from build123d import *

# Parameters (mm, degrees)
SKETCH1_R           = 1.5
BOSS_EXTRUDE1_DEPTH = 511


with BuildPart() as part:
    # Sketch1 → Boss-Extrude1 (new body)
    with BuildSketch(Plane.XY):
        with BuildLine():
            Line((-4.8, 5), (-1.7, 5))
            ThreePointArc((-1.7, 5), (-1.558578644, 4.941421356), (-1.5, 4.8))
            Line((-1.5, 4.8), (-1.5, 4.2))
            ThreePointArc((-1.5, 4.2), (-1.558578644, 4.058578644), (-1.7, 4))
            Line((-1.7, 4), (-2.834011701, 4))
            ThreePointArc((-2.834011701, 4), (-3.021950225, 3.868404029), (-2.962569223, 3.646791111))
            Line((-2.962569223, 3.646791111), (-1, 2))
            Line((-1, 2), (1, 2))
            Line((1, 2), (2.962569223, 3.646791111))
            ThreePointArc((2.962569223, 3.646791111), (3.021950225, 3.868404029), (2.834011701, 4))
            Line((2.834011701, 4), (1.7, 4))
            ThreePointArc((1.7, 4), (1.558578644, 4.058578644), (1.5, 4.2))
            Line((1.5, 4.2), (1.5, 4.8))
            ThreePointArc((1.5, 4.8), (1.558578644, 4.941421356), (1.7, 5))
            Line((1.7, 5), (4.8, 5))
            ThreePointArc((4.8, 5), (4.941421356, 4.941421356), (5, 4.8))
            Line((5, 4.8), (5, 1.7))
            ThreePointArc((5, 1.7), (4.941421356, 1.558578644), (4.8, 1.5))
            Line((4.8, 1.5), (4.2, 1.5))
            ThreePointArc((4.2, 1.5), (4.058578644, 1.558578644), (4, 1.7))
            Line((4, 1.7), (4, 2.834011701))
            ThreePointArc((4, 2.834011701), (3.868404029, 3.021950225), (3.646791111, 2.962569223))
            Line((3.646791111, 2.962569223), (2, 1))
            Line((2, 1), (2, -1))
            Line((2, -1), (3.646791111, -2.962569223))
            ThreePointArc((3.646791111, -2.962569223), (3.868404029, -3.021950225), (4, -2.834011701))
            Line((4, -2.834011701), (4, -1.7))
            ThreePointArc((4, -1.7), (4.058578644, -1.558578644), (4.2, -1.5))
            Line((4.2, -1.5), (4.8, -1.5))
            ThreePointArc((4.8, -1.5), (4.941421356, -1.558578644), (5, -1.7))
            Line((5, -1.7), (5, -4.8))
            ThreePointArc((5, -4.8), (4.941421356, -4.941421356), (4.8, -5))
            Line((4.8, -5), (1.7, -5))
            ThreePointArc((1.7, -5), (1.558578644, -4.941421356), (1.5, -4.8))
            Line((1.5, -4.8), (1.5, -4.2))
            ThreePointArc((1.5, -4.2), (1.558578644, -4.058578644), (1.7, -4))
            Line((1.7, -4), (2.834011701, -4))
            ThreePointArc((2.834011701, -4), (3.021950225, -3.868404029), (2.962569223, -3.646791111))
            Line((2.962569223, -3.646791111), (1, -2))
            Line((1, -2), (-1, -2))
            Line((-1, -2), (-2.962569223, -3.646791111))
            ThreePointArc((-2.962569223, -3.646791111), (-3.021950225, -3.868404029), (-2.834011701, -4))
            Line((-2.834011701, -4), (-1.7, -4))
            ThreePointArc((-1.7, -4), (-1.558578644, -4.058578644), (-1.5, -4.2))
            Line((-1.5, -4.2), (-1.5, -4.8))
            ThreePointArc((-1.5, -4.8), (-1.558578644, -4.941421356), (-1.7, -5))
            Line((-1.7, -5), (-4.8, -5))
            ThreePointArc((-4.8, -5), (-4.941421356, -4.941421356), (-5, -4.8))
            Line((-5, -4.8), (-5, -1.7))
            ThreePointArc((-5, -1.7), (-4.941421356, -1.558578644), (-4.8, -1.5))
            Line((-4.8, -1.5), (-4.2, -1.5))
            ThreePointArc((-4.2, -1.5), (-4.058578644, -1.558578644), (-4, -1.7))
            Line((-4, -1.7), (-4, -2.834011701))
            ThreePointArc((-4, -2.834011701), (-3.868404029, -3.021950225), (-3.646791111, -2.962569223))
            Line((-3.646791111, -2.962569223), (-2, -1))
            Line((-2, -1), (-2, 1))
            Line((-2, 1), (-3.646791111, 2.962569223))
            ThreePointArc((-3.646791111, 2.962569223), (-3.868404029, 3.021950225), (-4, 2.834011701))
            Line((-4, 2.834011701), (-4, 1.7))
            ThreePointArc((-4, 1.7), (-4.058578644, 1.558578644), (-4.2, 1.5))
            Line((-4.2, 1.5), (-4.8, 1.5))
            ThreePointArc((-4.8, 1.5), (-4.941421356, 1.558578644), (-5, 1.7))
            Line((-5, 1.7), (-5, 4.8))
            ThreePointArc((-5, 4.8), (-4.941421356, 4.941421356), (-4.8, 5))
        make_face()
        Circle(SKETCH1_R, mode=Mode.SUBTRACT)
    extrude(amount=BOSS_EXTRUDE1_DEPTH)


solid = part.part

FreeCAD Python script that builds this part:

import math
import FreeCAD as App
import Part
import Sketcher
from FreeCAD import Vector
Q = App.Units.Quantity

doc = App.newDocument("Part")
body = doc.addObject("PartDesign::Body", "Body")

sketch1 = body.newObject("Sketcher::SketchObject", "Sketch")
sketch1.AttachmentSupport = (doc.getObject("XY_Plane"), [""])
sketch1.MapMode = "FlatFace"
sketch1.addGeometry([
    Part.LineSegment(Vector(-1.7, 5, 0), Vector(-4.8, 5, 0)),
    Part.ArcOfCircle(Part.Circle(Vector(-4.8, 4.8, 0), Vector(0, 0, 1), 0.2), math.radians(90), math.radians(180)),
    Part.LineSegment(Vector(-5, 4.8, 0), Vector(-5, 1.7, 0)),
    Part.ArcOfCircle(Part.Circle(Vector(-4.8, 1.7, 0), Vector(0, 0, 1), 0.2), math.radians(-180), math.radians(-90)),
    Part.LineSegment(Vector(-4.8, 1.5, 0), Vector(-4.2, 1.5, 0)),
    Part.ArcOfCircle(Part.Circle(Vector(-4.2, 1.7, 0), Vector(0, 0, 1), 0.2), math.radians(-90), math.radians(0)),
    Part.LineSegment(Vector(-4, 1.7, 0), Vector(-4, 2.83, 0)),
    Part.ArcOfCircle(Part.Circle(Vector(-3.8, 2.83, 0), Vector(0, 0, 1), 0.2), math.radians(40), math.radians(180)),
    Part.LineSegment(Vector(-3.65, 2.96, 0), Vector(-2, 1, 0)),
    Part.LineSegment(Vector(-2, 1, 0), Vector(-2, -1, 0)),
    Part.LineSegment(Vector(-2, -1, 0), Vector(-3.65, -2.96, 0)),
    Part.ArcOfCircle(Part.Circle(Vector(-3.8, -2.83, 0), Vector(0, 0, 1), 0.2), math.radians(180), math.radians(320)),
    Part.LineSegment(Vector(-4, -2.83, 0), Vector(-4, -1.7, 0)),
    Part.ArcOfCircle(Part.Circle(Vector(-4.2, -1.7, 0), Vector(0, 0, 1), 0.2), math.radians(0), math.radians(90)),
    Part.LineSegment(Vector(-4.2, -1.5, 0), Vector(-4.8, -1.5, 0)),
    Part.ArcOfCircle(Part.Circle(Vector(-4.8, -1.7, 0), Vector(0, 0, 1), 0.2), math.radians(90), math.radians(180)),
    Part.LineSegment(Vector(-5, -1.7, 0), Vector(-5, -4.8, 0)),
    Part.ArcOfCircle(Part.Circle(Vector(-4.8, -4.8, 0), Vector(0, 0, 1), 0.2), math.radians(-180), math.radians(-90)),
    Part.LineSegment(Vector(-4.8, -5, 0), Vector(-1.7, -5, 0)),
    Part.ArcOfCircle(Part.Circle(Vector(-1.7, -4.8, 0), Vector(0, 0, 1), 0.2), math.radians(-90), math.radians(0)),
    Part.LineSegment(Vector(-1.5, -4.8, 0), Vector(-1.5, -4.2, 0)),
    Part.ArcOfCircle(Part.Circle(Vector(-1.7, -4.2, 0), Vector(0, 0, 1), 0.2), math.radians(0), math.radians(90)),
    Part.LineSegment(Vector(-1.7, -4, 0), Vector(-2.83, -4, 0)),
    Part.ArcOfCircle(Part.Circle(Vector(-2.83, -3.8, 0), Vector(0, 0, 1), 0.2), math.radians(130), math.radians(270)),
    Part.LineSegment(Vector(-2.96, -3.65, 0), Vector(-1, -2, 0)),
    Part.LineSegment(Vector(-1, -2, 0), Vector(1, -2, 0)),
    Part.LineSegment(Vector(1, -2, 0), Vector(2.96, -3.65, 0)),
    Part.ArcOfCircle(Part.Circle(Vector(2.83, -3.8, 0), Vector(0, 0, 1), 0.2), math.radians(-90), math.radians(50)),
    Part.LineSegment(Vector(2.83, -4, 0), Vector(1.7, -4, 0)),
    Part.ArcOfCircle(Part.Circle(Vector(1.7, -4.2, 0), Vector(0, 0, 1), 0.2), math.radians(90), math.radians(180)),
    Part.LineSegment(Vector(1.5, -4.2, 0), Vector(1.5, -4.8, 0)),
    Part.ArcOfCircle(Part.Circle(Vector(1.7, -4.8, 0), Vector(0, 0, 1), 0.2), math.radians(-180), math.radians(-90)),
    Part.LineSegment(Vector(1.7, -5, 0), Vector(4.8, -5, 0)),
    Part.ArcOfCircle(Part.Circle(Vector(4.8, -4.8, 0), Vector(0, 0, 1), 0.2), math.radians(-90), math.radians(0)),
    Part.LineSegment(Vector(5, -4.8, 0), Vector(5, -1.7, 0)),
    Part.ArcOfCircle(Part.Circle(Vector(4.8, -1.7, 0), Vector(0, 0, 1), 0.2), math.radians(0), math.radians(90)),
    Part.LineSegment(Vector(4.8, -1.5, 0), Vector(4.2, -1.5, 0)),
    Part.ArcOfCircle(Part.Circle(Vector(4.2, -1.7, 0), Vector(0, 0, 1), 0.2), math.radians(90), math.radians(180)),
    Part.LineSegment(Vector(4, -1.7, 0), Vector(4, -2.83, 0)),
    Part.ArcOfCircle(Part.Circle(Vector(3.8, -2.83, 0), Vector(0, 0, 1), 0.2), math.radians(-140), math.radians(0)),
    Part.LineSegment(Vector(3.65, -2.96, 0), Vector(2, -1, 0)),
    Part.LineSegment(Vector(2, -1, 0), Vector(2, 1, 0)),
    Part.LineSegment(Vector(2, 1, 0), Vector(3.65, 2.96, 0)),
    Part.ArcOfCircle(Part.Circle(Vector(3.8, 2.83, 0), Vector(0, 0, 1), 0.2), math.radians(0), math.radians(140)),
    Part.LineSegment(Vector(4, 2.83, 0), Vector(4, 1.7, 0)),
    Part.ArcOfCircle(Part.Circle(Vector(4.2, 1.7, 0), Vector(0, 0, 1), 0.2), math.radians(-180), math.radians(-90)),
    Part.LineSegment(Vector(4.2, 1.5, 0), Vector(4.8, 1.5, 0)),
    Part.ArcOfCircle(Part.Circle(Vector(4.8, 1.7, 0), Vector(0, 0, 1), 0.2), math.radians(-90), math.radians(0)),
    Part.LineSegment(Vector(5, 1.7, 0), Vector(5, 4.8, 0)),
    Part.ArcOfCircle(Part.Circle(Vector(4.8, 4.8, 0), Vector(0, 0, 1), 0.2), math.radians(0), math.radians(90)),
    Part.LineSegment(Vector(4.8, 5, 0), Vector(1.7, 5, 0)),
    Part.ArcOfCircle(Part.Circle(Vector(1.7, 4.8, 0), Vector(0, 0, 1), 0.2), math.radians(90), math.radians(180)),
    Part.LineSegment(Vector(1.5, 4.8, 0), Vector(1.5, 4.2, 0)),
    Part.ArcOfCircle(Part.Circle(Vector(1.7, 4.2, 0), Vector(0, 0, 1), 0.2), math.radians(-180), math.radians(-90)),
    Part.LineSegment(Vector(1.7, 4, 0), Vector(2.83, 4, 0)),
    Part.ArcOfCircle(Part.Circle(Vector(2.83, 3.8, 0), Vector(0, 0, 1), 0.2), math.radians(-50), math.radians(90)),
    Part.LineSegment(Vector(2.96, 3.65, 0), Vector(1, 2, 0)),
    Part.LineSegment(Vector(1, 2, 0), Vector(-1, 2, 0)),
    Part.LineSegment(Vector(-1, 2, 0), Vector(-2.96, 3.65, 0)),
    Part.ArcOfCircle(Part.Circle(Vector(-2.83, 3.8, 0), Vector(0, 0, 1), 0.2), math.radians(90), math.radians(230)),
    Part.LineSegment(Vector(-2.83, 4, 0), Vector(-1.7, 4, 0)),
    Part.ArcOfCircle(Part.Circle(Vector(-1.7, 4.2, 0), Vector(0, 0, 1), 0.2), math.radians(-90), math.radians(0)),
    Part.LineSegment(Vector(-1.5, 4.2, 0), Vector(-1.5, 4.8, 0)),
    Part.ArcOfCircle(Part.Circle(Vector(-1.7, 4.8, 0), Vector(0, 0, 1), 0.2), math.radians(0), math.radians(90)),
    Part.Circle(Vector(0, 0, 0), Vector(0, 0, 1), 1.5),
], False)
sketch1.addConstraint([
    Sketcher.Constraint("Tangent", 0, 2, 1, 1),
    Sketcher.Constraint("Tangent", 1, 2, 2, 1),
    Sketcher.Constraint("Tangent", 2, 2, 3, 1),
    Sketcher.Constraint("Tangent", 3, 2, 4, 1),
    Sketcher.Constraint("Tangent", 4, 2, 5, 1),
    Sketcher.Constraint("Tangent", 5, 2, 6, 1),
    Sketcher.Constraint("Tangent", 6, 2, 7, 2),
    Sketcher.Constraint("Tangent", 7, 1, 8, 1),
    Sketcher.Constraint("Coincident", 8, 2, 9, 1),
    Sketcher.Constraint("Coincident", 9, 2, 10, 1),
    Sketcher.Constraint("Tangent", 10, 2, 11, 2),
    Sketcher.Constraint("Tangent", 11, 1, 12, 1),
    Sketcher.Constraint("Tangent", 12, 2, 13, 1),
    Sketcher.Constraint("Tangent", 13, 2, 14, 1),
    Sketcher.Constraint("Tangent", 14, 2, 15, 1),
    Sketcher.Constraint("Tangent", 15, 2, 16, 1),
    Sketcher.Constraint("Tangent", 16, 2, 17, 1),
    Sketcher.Constraint("Tangent", 17, 2, 18, 1),
    Sketcher.Constraint("Tangent", 18, 2, 19, 1),
    Sketcher.Constraint("Tangent", 19, 2, 20, 1),
    Sketcher.Constraint("Tangent", 20, 2, 21, 1),
    Sketcher.Constraint("Tangent", 21, 2, 22, 1),
    Sketcher.Constraint("Tangent", 22, 2, 23, 2),
    Sketcher.Constraint("Tangent", 23, 1, 24, 1),
    Sketcher.Constraint("Coincident", 24, 2, 25, 1),
    Sketcher.Constraint("Coincident", 25, 2, 26, 1),
    Sketcher.Constraint("Tangent", 26, 2, 27, 2),
    Sketcher.Constraint("Tangent", 27, 1, 28, 1),
    Sketcher.Constraint("Tangent", 28, 2, 29, 1),
    Sketcher.Constraint("Tangent", 29, 2, 30, 1),
    Sketcher.Constraint("Tangent", 30, 2, 31, 1),
    Sketcher.Constraint("Tangent", 31, 2, 32, 1),
    Sketcher.Constraint("Tangent", 32, 2, 33, 1),
    Sketcher.Constraint("Tangent", 33, 2, 34, 1),
    Sketcher.Constraint("Tangent", 34, 2, 35, 1),
    Sketcher.Constraint("Tangent", 35, 2, 36, 1),
    Sketcher.Constraint("Tangent", 36, 2, 37, 1),
    Sketcher.Constraint("Tangent", 37, 2, 38, 1),
    Sketcher.Constraint("Tangent", 38, 2, 39, 2),
    Sketcher.Constraint("Tangent", 39, 1, 40, 1),
    Sketcher.Constraint("Coincident", 40, 2, 41, 1),
    Sketcher.Constraint("Coincident", 41, 2, 42, 1),
    Sketcher.Constraint("Tangent", 42, 2, 43, 2),
    Sketcher.Constraint("Tangent", 43, 1, 44, 1),
    Sketcher.Constraint("Tangent", 44, 2, 45, 1),
    Sketcher.Constraint("Tangent", 45, 2, 46, 1),
    Sketcher.Constraint("Tangent", 46, 2, 47, 1),
    Sketcher.Constraint("Tangent", 47, 2, 48, 1),
    Sketcher.Constraint("Tangent", 48, 2, 49, 1),
    Sketcher.Constraint("Tangent", 49, 2, 50, 1),
    Sketcher.Constraint("Tangent", 50, 2, 51, 1),
    Sketcher.Constraint("Tangent", 51, 2, 52, 1),
    Sketcher.Constraint("Tangent", 52, 2, 53, 1),
    Sketcher.Constraint("Tangent", 53, 2, 54, 1),
    Sketcher.Constraint("Tangent", 54, 2, 55, 2),
    Sketcher.Constraint("Tangent", 55, 1, 56, 1),
    Sketcher.Constraint("Coincident", 56, 2, 57, 1),
    Sketcher.Constraint("Coincident", 57, 2, 58, 1),
    Sketcher.Constraint("Tangent", 58, 2, 59, 2),
    Sketcher.Constraint("Tangent", 59, 1, 60, 1),
    Sketcher.Constraint("Tangent", 60, 2, 61, 1),
    Sketcher.Constraint("Tangent", 61, 2, 62, 1),
    Sketcher.Constraint("Tangent", 62, 2, 63, 1),
    Sketcher.Constraint("Tangent", 63, 2, 0, 1),
    Sketcher.Constraint("Horizontal", 0),
    Sketcher.Constraint("Vertical", 2),
    Sketcher.Constraint("Horizontal", 4),
    Sketcher.Constraint("Vertical", 6),
    Sketcher.Constraint("Vertical", 9),
    Sketcher.Constraint("Vertical", 12),
    Sketcher.Constraint("Horizontal", 14),
    Sketcher.Constraint("Vertical", 16),
    Sketcher.Constraint("Horizontal", 18),
    Sketcher.Constraint("Vertical", 20),
    Sketcher.Constraint("Horizontal", 22),
    Sketcher.Constraint("Horizontal", 25),
    Sketcher.Constraint("Horizontal", 28),
    Sketcher.Constraint("Vertical", 30),
    Sketcher.Constraint("Horizontal", 32),
    Sketcher.Constraint("Vertical", 34),
    Sketcher.Constraint("Horizontal", 36),
    Sketcher.Constraint("Vertical", 38),
    Sketcher.Constraint("Vertical", 41),
    Sketcher.Constraint("Vertical", 44),
    Sketcher.Constraint("Horizontal", 46),
    Sketcher.Constraint("Vertical", 48),
    Sketcher.Constraint("Horizontal", 50),
    Sketcher.Constraint("Vertical", 52),
    Sketcher.Constraint("Horizontal", 54),
    Sketcher.Constraint("Horizontal", 57),
    Sketcher.Constraint("Horizontal", 60),
    Sketcher.Constraint("Vertical", 62),
    Sketcher.Constraint("Coincident", 64, 3, -1, 1),
    Sketcher.Constraint("Equal", 1, 3),
    Sketcher.Constraint("Equal", 3, 5),
    Sketcher.Constraint("Equal", 5, 7),
    Sketcher.Constraint("Equal", 7, 11),
    Sketcher.Constraint("Equal", 11, 13),
    Sketcher.Constraint("Equal", 13, 15),
    Sketcher.Constraint("Equal", 15, 17),
    Sketcher.Constraint("Equal", 17, 19),
    Sketcher.Constraint("Equal", 19, 21),
    Sketcher.Constraint("Equal", 21, 23),
    Sketcher.Constraint("Equal", 23, 27),
    Sketcher.Constraint("Equal", 27, 29),
    Sketcher.Constraint("Equal", 29, 31),
    Sketcher.Constraint("Equal", 31, 33),
    Sketcher.Constraint("Equal", 33, 35),
    Sketcher.Constraint("Equal", 35, 37),
    Sketcher.Constraint("Equal", 37, 39),
    Sketcher.Constraint("Equal", 39, 43),
    Sketcher.Constraint("Equal", 43, 45),
    Sketcher.Constraint("Equal", 45, 47),
    Sketcher.Constraint("Equal", 47, 49),
    Sketcher.Constraint("Equal", 49, 51),
    Sketcher.Constraint("Equal", 51, 53),
    Sketcher.Constraint("Equal", 53, 55),
    Sketcher.Constraint("Equal", 55, 59),
    Sketcher.Constraint("Equal", 59, 61),
    Sketcher.Constraint("Equal", 61, 63),
    Sketcher.Constraint("Symmetric", 1, 3, 33, 3, -1, 1),
    Sketcher.Constraint("Symmetric", 5, 3, 37, 3, -1, 1),
    Sketcher.Constraint("Symmetric", 11, 3, 43, 3, -1, 1),
    Sketcher.Constraint("Symmetric", 15, 3, 47, 3, -1, 1),
    Sketcher.Constraint("Symmetric", 19, 3, 51, 3, -1, 1),
    Sketcher.Constraint("Symmetric", 23, 3, 55, 3, -1, 1),
    Sketcher.Constraint("Symmetric", 27, 3, 59, 3, -1, 1),
    Sketcher.Constraint("Symmetric", 7, 1, 39, 1, -1, 1),
    Sketcher.Constraint("Symmetric", 9, 2, 41, 2, -1, 1),
    Sketcher.Constraint("Symmetric", 24, 2, 56, 2, -1, 1),
    Sketcher.Constraint("Symmetric", 23, 3, 27, 3, -2),
    Sketcher.Constraint("Symmetric", 19, 3, 31, 3, -2),
    Sketcher.Constraint("Symmetric", 15, 3, 35, 3, -2),
    Sketcher.Constraint("Symmetric", 11, 3, 39, 3, -2),
    Sketcher.Constraint("Perpendicular", 8, 24),
    Sketcher.Constraint("Perpendicular", 10, 26),
    Sketcher.Constraint("Perpendicular", 42, 58),
    Sketcher.Constraint("Horizontal", 23, 1, 26, 2),
    Sketcher.Constraint("Vertical", 21, 3, 61, 3),
    Sketcher.Constraint("Equal", 50, 2),
    Sketcher.Constraint("Equal", 60, 6),
    Sketcher.Constraint("Equal", 57, 9),
    Sketcher.Constraint("Equal", 46, 20),
    Sketcher.Constraint("Equal", 10, 24),
    Sketcher.Constraint("Diameter", 64, 3.0),
    Sketcher.Constraint("Radius", 1, 0.2),
    Sketcher.Constraint("DistanceX", 25, 1, 25, 2, 2.0),
    Sketcher.Constraint("Angle", 8, Q("-50 deg")),
    Sketcher.Constraint("DistanceX", 0, 2, 0, 1, 3.1),
    Sketcher.Constraint("DistanceX", 4, 1, 4, 2, 0.6),
    Sketcher.Constraint("DistanceY", -1, 1, 0, 2, 5.0),
    Sketcher.Constraint("DistanceX", 8, 2, -1, 1, 2.0),
])
pad1 = body.newObject("PartDesign::Pad", "Pad")
pad1.Profile = sketch1
pad1.Length = 511

doc.recompute()
